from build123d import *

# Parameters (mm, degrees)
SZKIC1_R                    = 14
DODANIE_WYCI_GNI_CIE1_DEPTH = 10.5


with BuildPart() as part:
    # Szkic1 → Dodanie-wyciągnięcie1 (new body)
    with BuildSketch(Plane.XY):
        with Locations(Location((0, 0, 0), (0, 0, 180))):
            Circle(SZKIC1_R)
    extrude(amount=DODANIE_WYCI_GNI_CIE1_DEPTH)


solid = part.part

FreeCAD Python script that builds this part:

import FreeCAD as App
import Part
import Sketcher

V = App.Vector

doc = App.newDocument("Part")
body = doc.addObject("PartDesign::Body", "Body")

# Sketch on XY plane
sketch1 = body.newObject("Sketcher::SketchObject", "Sketch")
sketch1.AttachmentSupport = (doc.getObject("XY_Plane"), [""])
sketch1.MapMode = "FlatFace"
sketch1.addGeometry(Part.Circle(V(0, 0, 0), V(0, 0, 1), 14), False)
sketch1.addConstraint([
    Sketcher.Constraint("Coincident", 0, 3, -1, 1),
    Sketcher.Constraint("Diameter", 0, 28.0),
])
pad1 = body.newObject("PartDesign::Pad", "Pad")
pad1.Profile = sketch1
pad1.Length = 10.5

doc.recompute()
